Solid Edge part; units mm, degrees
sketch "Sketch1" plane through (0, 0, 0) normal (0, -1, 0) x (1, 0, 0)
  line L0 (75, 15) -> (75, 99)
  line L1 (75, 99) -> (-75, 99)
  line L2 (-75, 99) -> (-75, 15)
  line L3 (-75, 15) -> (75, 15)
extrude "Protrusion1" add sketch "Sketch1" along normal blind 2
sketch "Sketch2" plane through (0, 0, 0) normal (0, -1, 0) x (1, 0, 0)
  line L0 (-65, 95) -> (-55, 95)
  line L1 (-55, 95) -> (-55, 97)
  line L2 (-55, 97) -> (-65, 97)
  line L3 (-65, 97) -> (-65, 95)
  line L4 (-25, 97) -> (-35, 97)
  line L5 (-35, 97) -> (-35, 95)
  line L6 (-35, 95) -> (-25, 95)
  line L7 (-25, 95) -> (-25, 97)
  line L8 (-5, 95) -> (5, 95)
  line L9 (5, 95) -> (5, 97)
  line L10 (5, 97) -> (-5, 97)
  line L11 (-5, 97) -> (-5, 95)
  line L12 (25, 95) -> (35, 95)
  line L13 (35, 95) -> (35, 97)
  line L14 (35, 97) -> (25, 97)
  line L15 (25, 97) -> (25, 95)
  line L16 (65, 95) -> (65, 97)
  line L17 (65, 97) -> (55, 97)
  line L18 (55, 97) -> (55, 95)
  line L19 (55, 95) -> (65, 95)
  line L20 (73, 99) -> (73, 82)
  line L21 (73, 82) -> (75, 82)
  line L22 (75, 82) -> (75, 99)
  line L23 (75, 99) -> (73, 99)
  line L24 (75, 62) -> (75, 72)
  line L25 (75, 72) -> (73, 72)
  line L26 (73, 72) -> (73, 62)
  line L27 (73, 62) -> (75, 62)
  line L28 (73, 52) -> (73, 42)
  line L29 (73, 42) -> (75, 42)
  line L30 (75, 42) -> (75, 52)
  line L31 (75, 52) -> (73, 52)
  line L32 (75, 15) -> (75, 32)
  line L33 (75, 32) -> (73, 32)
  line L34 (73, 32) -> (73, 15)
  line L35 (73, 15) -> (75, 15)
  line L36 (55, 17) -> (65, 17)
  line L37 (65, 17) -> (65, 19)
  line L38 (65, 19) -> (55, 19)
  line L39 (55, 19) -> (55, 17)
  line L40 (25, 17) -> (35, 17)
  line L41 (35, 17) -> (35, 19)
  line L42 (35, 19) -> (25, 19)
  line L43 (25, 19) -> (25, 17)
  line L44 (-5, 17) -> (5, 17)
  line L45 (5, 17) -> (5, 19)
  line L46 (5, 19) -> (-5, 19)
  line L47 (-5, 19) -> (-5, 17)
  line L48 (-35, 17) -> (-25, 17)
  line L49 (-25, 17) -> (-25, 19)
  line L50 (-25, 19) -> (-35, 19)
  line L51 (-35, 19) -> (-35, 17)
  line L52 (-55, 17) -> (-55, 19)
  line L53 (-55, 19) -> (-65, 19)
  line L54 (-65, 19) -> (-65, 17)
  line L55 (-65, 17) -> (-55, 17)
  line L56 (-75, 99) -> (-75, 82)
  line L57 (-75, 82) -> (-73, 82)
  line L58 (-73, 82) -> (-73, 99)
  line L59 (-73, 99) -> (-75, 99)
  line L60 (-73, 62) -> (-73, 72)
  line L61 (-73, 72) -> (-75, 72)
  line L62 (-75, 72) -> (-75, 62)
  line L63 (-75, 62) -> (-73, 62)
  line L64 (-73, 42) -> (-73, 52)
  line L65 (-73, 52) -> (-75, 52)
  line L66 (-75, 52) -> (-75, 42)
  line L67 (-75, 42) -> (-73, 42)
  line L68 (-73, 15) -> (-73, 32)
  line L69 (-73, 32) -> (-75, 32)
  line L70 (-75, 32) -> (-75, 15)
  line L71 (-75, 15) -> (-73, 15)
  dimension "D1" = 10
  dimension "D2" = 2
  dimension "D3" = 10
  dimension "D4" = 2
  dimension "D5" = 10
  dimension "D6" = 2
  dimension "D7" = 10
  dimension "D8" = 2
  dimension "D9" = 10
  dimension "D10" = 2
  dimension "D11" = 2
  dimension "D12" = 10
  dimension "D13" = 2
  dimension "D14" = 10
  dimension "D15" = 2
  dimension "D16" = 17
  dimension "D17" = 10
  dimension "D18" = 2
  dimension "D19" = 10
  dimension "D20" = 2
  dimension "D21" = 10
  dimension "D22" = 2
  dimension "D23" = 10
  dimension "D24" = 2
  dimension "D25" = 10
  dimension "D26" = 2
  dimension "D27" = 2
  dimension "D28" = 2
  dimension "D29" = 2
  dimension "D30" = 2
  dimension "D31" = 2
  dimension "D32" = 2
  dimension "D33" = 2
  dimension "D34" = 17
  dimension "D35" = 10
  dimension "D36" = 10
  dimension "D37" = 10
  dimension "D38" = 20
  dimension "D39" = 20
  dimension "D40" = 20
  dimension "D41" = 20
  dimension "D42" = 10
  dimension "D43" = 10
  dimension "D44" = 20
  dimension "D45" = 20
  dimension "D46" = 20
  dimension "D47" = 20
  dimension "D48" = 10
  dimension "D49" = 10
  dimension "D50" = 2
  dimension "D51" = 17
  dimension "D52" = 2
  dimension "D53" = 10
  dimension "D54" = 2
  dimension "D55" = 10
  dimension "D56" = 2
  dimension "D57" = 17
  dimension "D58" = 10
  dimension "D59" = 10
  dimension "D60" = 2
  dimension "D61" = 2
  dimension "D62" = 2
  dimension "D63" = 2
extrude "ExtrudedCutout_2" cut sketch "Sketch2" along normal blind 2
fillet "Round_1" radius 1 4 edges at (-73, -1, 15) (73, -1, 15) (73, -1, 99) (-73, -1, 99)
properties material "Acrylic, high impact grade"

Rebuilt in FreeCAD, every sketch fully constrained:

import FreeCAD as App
import Part
import Sketcher

V = App.Vector


def edges_at(feature, points):
    """Names of the edges that pass closest to the given points."""
    edges = feature.Shape.Edges
    near = lambda p: min(range(len(edges)), key=lambda i: edges[i].distToShape(Part.Vertex(*p))[0])
    return sorted({f"Edge{near(p) + 1}" for p in points})

doc = App.newDocument("Part")
body = doc.addObject("PartDesign::Body", "Body")

sketch1 = doc.addObject("Sketcher::SketchObject", "Sketch")
body.addObject(sketch1)
sketch1.AttachmentSupport = (doc.XZ_Plane, [""])
sketch1.MapMode = "FlatFace"
sketch1.addGeometry([
    Part.LineSegment(V(-75, 15, 0), V(75, 15, 0)),
    Part.LineSegment(V(75, 15, 0), V(75, 99, 0)),
    Part.LineSegment(V(75, 99, 0), V(-75, 99, 0)),
    Part.LineSegment(V(-75, 99, 0), V(-75, 15, 0)),
], False)
sketch1.addConstraint([
    Sketcher.Constraint("Coincident", 0, 2, 1, 1),
    Sketcher.Constraint("Coincident", 1, 2, 2, 1),
    Sketcher.Constraint("Coincident", 2, 2, 3, 1),
    Sketcher.Constraint("Coincident", 3, 2, 0, 1),
    Sketcher.Constraint("Horizontal", 0),
    Sketcher.Constraint("Vertical", 1),
    Sketcher.Constraint("Horizontal", 2),
    Sketcher.Constraint("Vertical", 3),
    Sketcher.Constraint("DistanceX", 0, 1, 0, 2, 150.0),
    Sketcher.Constraint("DistanceY", 1, 1, 1, 2, 84.0),
    Sketcher.Constraint("DistanceX", -1, 1, 0, 2, 75.0),
    Sketcher.Constraint("DistanceY", -1, 1, 0, 2, 15.0),
])
pad1 = doc.addObject("PartDesign::Pad", "Pad")
body.addObject(pad1)
pad1.Profile = sketch1
pad1.Length = 2

sketch2 = doc.addObject("Sketcher::SketchObject", "Sketch001")
body.addObject(sketch2)
sketch2.AttachmentSupport = (doc.XZ_Plane, [""])
sketch2.MapMode = "FlatFace"
sketch2.addGeometry([
    Part.LineSegment(V(-65, 97, 0), V(-65, 95, 0)),
    Part.LineSegment(V(-65, 95, 0), V(-55, 95, 0)),
    Part.LineSegment(V(-55, 95, 0), V(-55, 97, 0)),
    Part.LineSegment(V(-55, 97, 0), V(-65, 97, 0)),
    Part.LineSegment(V(-25, 95, 0), V(-25, 97, 0)),
    Part.LineSegment(V(-25, 97, 0), V(-35, 97, 0)),
    Part.LineSegment(V(-35, 97, 0), V(-35, 95, 0)),
    Part.LineSegment(V(-35, 95, 0), V(-25, 95, 0)),
    Part.LineSegment(V(-5, 97, 0), V(-5, 95, 0)),
    Part.LineSegment(V(-5, 95, 0), V(5, 95, 0)),
    Part.LineSegment(V(5, 95, 0), V(5, 97, 0)),
    Part.LineSegment(V(5, 97, 0), V(-5, 97, 0)),
    Part.LineSegment(V(25, 97, 0), V(25, 95, 0)),
    Part.LineSegment(V(25, 95, 0), V(35, 95, 0)),
    Part.LineSegment(V(35, 95, 0), V(35, 97, 0)),
    Part.LineSegment(V(35, 97, 0), V(25, 97, 0)),
    Part.LineSegment(V(55, 95, 0), V(65, 95, 0)),
    Part.LineSegment(V(65, 95, 0), V(65, 97, 0)),
    Part.LineSegment(V(65, 97, 0), V(55, 97, 0)),
    Part.LineSegment(V(55, 97, 0), V(55, 95, 0)),
    Part.LineSegment(V(75, 99, 0), V(73, 99, 0)),
    Part.LineSegment(V(73, 99, 0), V(73, 82, 0)),
    Part.LineSegment(V(73, 82, 0), V(75, 82, 0)),
    Part.LineSegment(V(75, 82, 0), V(75, 99, 0)),
    Part.LineSegment(V(73, 62, 0), V(75, 62, 0)),
    Part.LineSegment(V(75, 62, 0), V(75, 72, 0)),
    Part.LineSegment(V(75, 72, 0), V(73, 72, 0)),
    Part.LineSegment(V(73, 72, 0), V(73, 62, 0)),
    Part.LineSegment(V(75, 52, 0), V(73, 52, 0)),
    Part.LineSegment(V(73, 52, 0), V(73, 42, 0)),
    Part.LineSegment(V(73, 42, 0), V(75, 42, 0)),
    Part.LineSegment(V(75, 42, 0), V(75, 52, 0)),
    Part.LineSegment(V(73, 15, 0), V(75, 15, 0)),
    Part.LineSegment(V(75, 15, 0), V(75, 32, 0)),
    Part.LineSegment(V(75, 32, 0), V(73, 32, 0)),
    Part.LineSegment(V(73, 32, 0), V(73, 15, 0)),
    Part.LineSegment(V(55, 19, 0), V(55, 17, 0)),
    Part.LineSegment(V(55, 17, 0), V(65, 17, 0)),
    Part.LineSegment(V(65, 17, 0), V(65, 19, 0)),
    Part.LineSegment(V(65, 19, 0), V(55, 19, 0)),
    Part.LineSegment(V(25, 19, 0), V(25, 17, 0)),
    Part.LineSegment(V(25, 17, 0), V(35, 17, 0)),
    Part.LineSegment(V(35, 17, 0), V(35, 19, 0)),
    Part.LineSegment(V(35, 19, 0), V(25, 19, 0)),
    Part.LineSegment(V(-5, 19, 0), V(-5, 17, 0)),
    Part.LineSegment(V(-5, 17, 0), V(5, 17, 0)),
    Part.LineSegment(V(5, 17, 0), V(5, 19, 0)),
    Part.LineSegment(V(5, 19, 0), V(-5, 19, 0)),
    Part.LineSegment(V(-35, 19, 0), V(-35, 17, 0)),
    Part.LineSegment(V(-35, 17, 0), V(-25, 17, 0)),
    Part.LineSegment(V(-25, 17, 0), V(-25, 19, 0)),
    Part.LineSegment(V(-25, 19, 0), V(-35, 19, 0)),
    Part.LineSegment(V(-65, 17, 0), V(-55, 17, 0)),
    Part.LineSegment(V(-55, 17, 0), V(-55, 19, 0)),
    Part.LineSegment(V(-55, 19, 0), V(-65, 19, 0)),
    Part.LineSegment(V(-65, 19, 0), V(-65, 17, 0)),
    Part.LineSegment(V(-73, 99, 0), V(-75, 99, 0)),
    Part.LineSegment(V(-75, 99, 0), V(-75, 82, 0)),
    Part.LineSegment(V(-75, 82, 0), V(-73, 82, 0)),
    Part.LineSegment(V(-73, 82, 0), V(-73, 99, 0)),
    Part.LineSegment(V(-75, 62, 0), V(-73, 62, 0)),
    Part.LineSegment(V(-73, 62, 0), V(-73, 72, 0)),
    Part.LineSegment(V(-73, 72, 0), V(-75, 72, 0)),
    Part.LineSegment(V(-75, 72, 0), V(-75, 62, 0)),
    Part.LineSegment(V(-75, 42, 0), V(-73, 42, 0)),
    Part.LineSegment(V(-73, 42, 0), V(-73, 52, 0)),
    Part.LineSegment(V(-73, 52, 0), V(-75, 52, 0)),
    Part.LineSegment(V(-75, 52, 0), V(-75, 42, 0)),
    Part.LineSegment(V(-75, 15, 0), V(-73, 15, 0)),
    Part.LineSegment(V(-73, 15, 0), V(-73, 32, 0)),
    Part.LineSegment(V(-73, 32, 0), V(-75, 32, 0)),
    Part.LineSegment(V(-75, 32, 0), V(-75, 15, 0)),
], False)
sketch2.addConstraint([
    Sketcher.Constraint("Coincident", 0, 2, 1, 1),
    Sketcher.Constraint("Coincident", 1, 2, 2, 1),
    Sketcher.Constraint("Coincident", 2, 2, 3, 1),
    Sketcher.Constraint("Coincident", 3, 2, 0, 1),
    Sketcher.Constraint("Coincident", 4, 2, 5, 1),
    Sketcher.Constraint("Coincident", 5, 2, 6, 1),
    Sketcher.Constraint("Coincident", 6, 2, 7, 1),
    Sketcher.Constraint("Coincident", 7, 2, 4, 1),
    Sketcher.Constraint("Coincident", 8, 2, 9, 1),
    Sketcher.Constraint("Coincident", 9, 2, 10, 1),
    Sketcher.Constraint("Coincident", 10, 2, 11, 1),
    Sketcher.Constraint("Coincident", 11, 2, 8, 1),
    Sketcher.Constraint("Coincident", 12, 2, 13, 1),
    Sketcher.Constraint("Coincident", 13, 2, 14, 1),
    Sketcher.Constraint("Coincident", 14, 2, 15, 1),
    Sketcher.Constraint("Coincident", 15, 2, 12, 1),
    Sketcher.Constraint("Coincident", 16, 2, 17, 1),
    Sketcher.Constraint("Coincident", 17, 2, 18, 1),
    Sketcher.Constraint("Coincident", 18, 2, 19, 1),
    Sketcher.Constraint("Coincident", 19, 2, 16, 1),
    Sketcher.Constraint("Coincident", 20, 2, 21, 1),
    Sketcher.Constraint("Coincident", 21, 2, 22, 1),
    Sketcher.Constraint("Coincident", 22, 2, 23, 1),
    Sketcher.Constraint("Coincident", 23, 2, 20, 1),
    Sketcher.Constraint("Coincident", 24, 2, 25, 1),
    Sketcher.Constraint("Coincident", 25, 2, 26, 1),
    Sketcher.Constraint("Coincident", 26, 2, 27, 1),
    Sketcher.Constraint("Coincident", 27, 2, 24, 1),
    Sketcher.Constraint("Coincident", 28, 2, 29, 1),
    Sketcher.Constraint("Coincident", 29, 2, 30, 1),
    Sketcher.Constraint("Coincident", 30, 2, 31, 1),
    Sketcher.Constraint("Coincident", 31, 2, 28, 1),
    Sketcher.Constraint("Coincident", 32, 2, 33, 1),
    Sketcher.Constraint("Coincident", 33, 2, 34, 1),
    Sketcher.Constraint("Coincident", 34, 2, 35, 1),
    Sketcher.Constraint("Coincident", 35, 2, 32, 1),
    Sketcher.Constraint("Coincident", 36, 2, 37, 1),
    Sketcher.Constraint("Coincident", 37, 2, 38, 1),
    Sketcher.Constraint("Coincident", 38, 2, 39, 1),
    Sketcher.Constraint("Coincident", 39, 2, 36, 1),
    Sketcher.Constraint("Coincident", 40, 2, 41, 1),
    Sketcher.Constraint("Coincident", 41, 2, 42, 1),
    Sketcher.Constraint("Coincident", 42, 2, 43, 1),
    Sketcher.Constraint("Coincident", 43, 2, 40, 1),
    Sketcher.Constraint("Coincident", 44, 2, 45, 1),
    Sketcher.Constraint("Coincident", 45, 2, 46, 1),
    Sketcher.Constraint("Coincident", 46, 2, 47, 1),
    Sketcher.Constraint("Coincident", 47, 2, 44, 1),
    Sketcher.Constraint("Coincident", 48, 2, 49, 1),
    Sketcher.Constraint("Coincident", 49, 2, 50, 1),
    Sketcher.Constraint("Coincident", 50, 2, 51, 1),
    Sketcher.Constraint("Coincident", 51, 2, 48, 1),
    Sketcher.Constraint("Coincident", 52, 2, 53, 1),
    Sketcher.Constraint("Coincident", 53, 2, 54, 1),
    Sketcher.Constraint("Coincident", 54, 2, 55, 1),
    Sketcher.Constraint("Coincident", 55, 2, 52, 1),
    Sketcher.Constraint("Coincident", 56, 2, 57, 1),
    Sketcher.Constraint("Coincident", 57, 2, 58, 1),
    Sketcher.Constraint("Coincident", 58, 2, 59, 1),
    Sketcher.Constraint("Coincident", 59, 2, 56, 1),
    Sketcher.Constraint("Coincident", 60, 2, 61, 1),
    Sketcher.Constraint("Coincident", 61, 2, 62, 1),
    Sketcher.Constraint("Coincident", 62, 2, 63, 1),
    Sketcher.Constraint("Coincident", 63, 2, 60, 1),
    Sketcher.Constraint("Coincident", 64, 2, 65, 1),
    Sketcher.Constraint("Coincident", 65, 2, 66, 1),
    Sketcher.Constraint("Coincident", 66, 2, 67, 1),
    Sketcher.Constraint("Coincident", 67, 2, 64, 1),
    Sketcher.Constraint("Coincident", 68, 2, 69, 1),
    Sketcher.Constraint("Coincident", 69, 2, 70, 1),
    Sketcher.Constraint("Coincident", 70, 2, 71, 1),
    Sketcher.Constraint("Coincident", 71, 2, 68, 1),
    Sketcher.Constraint("Vertical", 0),
    Sketcher.Constraint("Horizontal", 1),
    Sketcher.Constraint("Vertical", 2),
    Sketcher.Constraint("Horizontal", 3),
    Sketcher.Constraint("Vertical", 4),
    Sketcher.Constraint("Horizontal", 5),
    Sketcher.Constraint("Vertical", 6),
    Sketcher.Constraint("Horizontal", 7),
    Sketcher.Constraint("Vertical", 8),
    Sketcher.Constraint("Horizontal", 9),
    Sketcher.Constraint("Vertical", 10),
    Sketcher.Constraint("Horizontal", 11),
    Sketcher.Constraint("Vertical", 12),
    Sketcher.Constraint("Horizontal", 13),
    Sketcher.Constraint("Vertical", 14),
    Sketcher.Constraint("Horizontal", 15),
    Sketcher.Constraint("Horizontal", 16),
    Sketcher.Constraint("Vertical", 17),
    Sketcher.Constraint("Horizontal", 18),
    Sketcher.Constraint("Vertical", 19),
    Sketcher.Constraint("Horizontal", 20),
    Sketcher.Constraint("Vertical", 21),
    Sketcher.Constraint("Horizontal", 22),
    Sketcher.Constraint("Vertical", 23),
    Sketcher.Constraint("Horizontal", 24),
    Sketcher.Constraint("Vertical", 25),
    Sketcher.Constraint("Horizontal", 26),
    Sketcher.Constraint("Vertical", 27),
    Sketcher.Constraint("Horizontal", 28),
    Sketcher.Constraint("Vertical", 29),
    Sketcher.Constraint("Horizontal", 30),
    Sketcher.Constraint("Vertical", 31),
    Sketcher.Constraint("Horizontal", 32),
    Sketcher.Constraint("Vertical", 33),
    Sketcher.Constraint("Horizontal", 34),
    Sketcher.Constraint("Vertical", 35),
    Sketcher.Constraint("Vertical", 36),
    Sketcher.Constraint("Horizontal", 37),
    Sketcher.Constraint("Vertical", 38),
    Sketcher.Constraint("Horizontal", 39),
    Sketcher.Constraint("Vertical", 40),
    Sketcher.Constraint("Horizontal", 41),
    Sketcher.Constraint("Vertical", 42),
    Sketcher.Constraint("Horizontal", 43),
    Sketcher.Constraint("Vertical", 44),
    Sketcher.Constraint("Horizontal", 45),
    Sketcher.Constraint("Vertical", 46),
    Sketcher.Constraint("Horizontal", 47),
    Sketcher.Constraint("Vertical", 48),
    Sketcher.Constraint("Horizontal", 49),
    Sketcher.Constraint("Vertical", 50),
    Sketcher.Constraint("Horizontal", 51),
    Sketcher.Constraint("Horizontal", 52),
    Sketcher.Constraint("Vertical", 53),
    Sketcher.Constraint("Horizontal", 54),
    Sketcher.Constraint("Vertical", 55),
    Sketcher.Constraint("Horizontal", 56),
    Sketcher.Constraint("Vertical", 57),
    Sketcher.Constraint("Horizontal", 58),
    Sketcher.Constraint("Vertical", 59),
    Sketcher.Constraint("Horizontal", 60),
    Sketcher.Constraint("Vertical", 61),
    Sketcher.Constraint("Horizontal", 62),
    Sketcher.Constraint("Vertical", 63),
    Sketcher.Constraint("Horizontal", 64),
    Sketcher.Constraint("Vertical", 65),
    Sketcher.Constraint("Horizontal", 66),
    Sketcher.Constraint("Vertical", 67),
    Sketcher.Constraint("Horizontal", 68),
    Sketcher.Constraint("Vertical", 69),
    Sketcher.Constraint("Horizontal", 70),
    Sketcher.Constraint("Vertical", 71),
    Sketcher.Constraint("Symmetric", 7, 2, 12, 2, -2),
    Sketcher.Constraint("Symmetric", 5, 2, 14, 2, -2),
    Sketcher.Constraint("Symmetric", 0, 2, 16, 2, -2),
    Sketcher.Constraint("Symmetric", 2, 2, 18, 2, -2),
    Sketcher.Constraint("Symmetric", 41, 2, 48, 2, -2),
    Sketcher.Constraint("Symmetric", 43, 2, 50, 2, -2),
    Sketcher.Constraint("Symmetric", 36, 2, 52, 2, -2),
    Sketcher.Constraint("Symmetric", 38, 2, 54, 2, -2),
    Sketcher.Constraint("Symmetric", 23, 2, 56, 2, -2),
    Sketcher.Constraint("Symmetric", 21, 2, 58, 2, -2),
    Sketcher.Constraint("Symmetric", 27, 2, 60, 2, -2),
    Sketcher.Constraint("Symmetric", 25, 2, 62, 2, -2),
    Sketcher.Constraint("Symmetric", 29, 2, 64, 2, -2),
    Sketcher.Constraint("Symmetric", 31, 2, 66, 2, -2),
    Sketcher.Constraint("Symmetric", 35, 2, 68, 2, -2),
    Sketcher.Constraint("Symmetric", 33, 2, 70, 2, -2),
    Sketcher.Constraint("Horizontal", 3, 2, 4, 2),
    Sketcher.Constraint("Horizontal", 1, 2, 6, 2),
    Sketcher.Constraint("Horizontal", 7, 2, 8, 2),
    Sketcher.Constraint("Horizontal", 5, 2, 10, 2),
    Sketcher.Constraint("Horizontal", 37, 2, 40, 2),
    Sketcher.Constraint("Horizontal", 39, 2, 42, 2),
    Sketcher.Constraint("Horizontal", 41, 2, 44, 2),
    Sketcher.Constraint("Horizontal", 43, 2, 46, 2),
    Sketcher.Constraint("Vertical", 23, 2, 24, 2),
    Sketcher.Constraint("Vertical", 21, 2, 26, 2),
    Sketcher.Constraint("Vertical", 27, 2, 28, 2),
    Sketcher.Constraint("Vertical", 25, 2, 30, 2),
    Sketcher.Constraint("Vertical", 31, 2, 32, 2),
    Sketcher.Constraint("Vertical", 29, 2, 34, 2),
    Sketcher.Constraint("Vertical", 19, 2, 36, 2),
    Sketcher.Constraint("Vertical", 17, 2, 37, 2),
    Sketcher.Constraint("Vertical", 15, 2, 40, 2),
    Sketcher.Constraint("Vertical", 14, 2, 41, 2),
    Sketcher.Constraint("Vertical", 11, 2, 44, 2),
    Sketcher.Constraint("Vertical", 10, 2, 45, 2),
    Sketcher.Constraint("Equal", 3, 5),
    Sketcher.Constraint("Equal", 7, 9),
    Sketcher.Constraint("Equal", 70, 0),
    Sketcher.Constraint("Equal", 54, 25),
    Sketcher.Constraint("Equal", 27, 29),
    Sketcher.Constraint("Equal", 23, 33),
    Sketcher.Constraint("Equal", 19, 36),
    Sketcher.Constraint("DistanceX", 1, 1, 1, 2, 10.0),
    Sketcher.Constraint("DistanceX", 20, 2, 20, 1, 2.0),
    Sketcher.Constraint("DistanceY", 21, 2, 21, 1, 17.0),
    Sketcher.Constraint("DistanceX", 0, 2, -1, 1, 65.0),
    Sketcher.Constraint("DistanceY", -1, 1, 0, 2, 95.0),
    Sketcher.Constraint("DistanceX", 4, 2, -1, 1, 25.0),
    Sketcher.Constraint("DistanceX", 8, 2, -1, 1, 5.0),
    Sketcher.Constraint("DistanceX", -1, 1, 20, 2, 73.0),
    Sketcher.Constraint("DistanceY", -1, 1, 20, 2, 99.0),
    Sketcher.Constraint("DistanceY", -1, 1, 24, 2, 62.0),
    Sketcher.Constraint("DistanceY", -1, 1, 28, 2, 52.0),
    Sketcher.Constraint("DistanceY", -1, 1, 32, 2, 15.0),
    Sketcher.Constraint("DistanceY", -1, 1, 36, 2, 17.0),
])
pocket1 = doc.addObject("PartDesign::Pocket", "Pocket")
body.addObject(pocket1)
pocket1.Profile = sketch2
pocket1.Length = 2
pocket1.Reversed = True
doc.recompute()

fillet = doc.addObject("PartDesign::Fillet", "Fillet")
body.addObject(fillet)
fillet.Base = (pocket1, edges_at(pocket1, [
    (-73, -1, 15),
    (73, -1, 15),
    (73, -1, 99),
    (-73, -1, 99),
]))
fillet.Radius = 1

doc.recompute()
